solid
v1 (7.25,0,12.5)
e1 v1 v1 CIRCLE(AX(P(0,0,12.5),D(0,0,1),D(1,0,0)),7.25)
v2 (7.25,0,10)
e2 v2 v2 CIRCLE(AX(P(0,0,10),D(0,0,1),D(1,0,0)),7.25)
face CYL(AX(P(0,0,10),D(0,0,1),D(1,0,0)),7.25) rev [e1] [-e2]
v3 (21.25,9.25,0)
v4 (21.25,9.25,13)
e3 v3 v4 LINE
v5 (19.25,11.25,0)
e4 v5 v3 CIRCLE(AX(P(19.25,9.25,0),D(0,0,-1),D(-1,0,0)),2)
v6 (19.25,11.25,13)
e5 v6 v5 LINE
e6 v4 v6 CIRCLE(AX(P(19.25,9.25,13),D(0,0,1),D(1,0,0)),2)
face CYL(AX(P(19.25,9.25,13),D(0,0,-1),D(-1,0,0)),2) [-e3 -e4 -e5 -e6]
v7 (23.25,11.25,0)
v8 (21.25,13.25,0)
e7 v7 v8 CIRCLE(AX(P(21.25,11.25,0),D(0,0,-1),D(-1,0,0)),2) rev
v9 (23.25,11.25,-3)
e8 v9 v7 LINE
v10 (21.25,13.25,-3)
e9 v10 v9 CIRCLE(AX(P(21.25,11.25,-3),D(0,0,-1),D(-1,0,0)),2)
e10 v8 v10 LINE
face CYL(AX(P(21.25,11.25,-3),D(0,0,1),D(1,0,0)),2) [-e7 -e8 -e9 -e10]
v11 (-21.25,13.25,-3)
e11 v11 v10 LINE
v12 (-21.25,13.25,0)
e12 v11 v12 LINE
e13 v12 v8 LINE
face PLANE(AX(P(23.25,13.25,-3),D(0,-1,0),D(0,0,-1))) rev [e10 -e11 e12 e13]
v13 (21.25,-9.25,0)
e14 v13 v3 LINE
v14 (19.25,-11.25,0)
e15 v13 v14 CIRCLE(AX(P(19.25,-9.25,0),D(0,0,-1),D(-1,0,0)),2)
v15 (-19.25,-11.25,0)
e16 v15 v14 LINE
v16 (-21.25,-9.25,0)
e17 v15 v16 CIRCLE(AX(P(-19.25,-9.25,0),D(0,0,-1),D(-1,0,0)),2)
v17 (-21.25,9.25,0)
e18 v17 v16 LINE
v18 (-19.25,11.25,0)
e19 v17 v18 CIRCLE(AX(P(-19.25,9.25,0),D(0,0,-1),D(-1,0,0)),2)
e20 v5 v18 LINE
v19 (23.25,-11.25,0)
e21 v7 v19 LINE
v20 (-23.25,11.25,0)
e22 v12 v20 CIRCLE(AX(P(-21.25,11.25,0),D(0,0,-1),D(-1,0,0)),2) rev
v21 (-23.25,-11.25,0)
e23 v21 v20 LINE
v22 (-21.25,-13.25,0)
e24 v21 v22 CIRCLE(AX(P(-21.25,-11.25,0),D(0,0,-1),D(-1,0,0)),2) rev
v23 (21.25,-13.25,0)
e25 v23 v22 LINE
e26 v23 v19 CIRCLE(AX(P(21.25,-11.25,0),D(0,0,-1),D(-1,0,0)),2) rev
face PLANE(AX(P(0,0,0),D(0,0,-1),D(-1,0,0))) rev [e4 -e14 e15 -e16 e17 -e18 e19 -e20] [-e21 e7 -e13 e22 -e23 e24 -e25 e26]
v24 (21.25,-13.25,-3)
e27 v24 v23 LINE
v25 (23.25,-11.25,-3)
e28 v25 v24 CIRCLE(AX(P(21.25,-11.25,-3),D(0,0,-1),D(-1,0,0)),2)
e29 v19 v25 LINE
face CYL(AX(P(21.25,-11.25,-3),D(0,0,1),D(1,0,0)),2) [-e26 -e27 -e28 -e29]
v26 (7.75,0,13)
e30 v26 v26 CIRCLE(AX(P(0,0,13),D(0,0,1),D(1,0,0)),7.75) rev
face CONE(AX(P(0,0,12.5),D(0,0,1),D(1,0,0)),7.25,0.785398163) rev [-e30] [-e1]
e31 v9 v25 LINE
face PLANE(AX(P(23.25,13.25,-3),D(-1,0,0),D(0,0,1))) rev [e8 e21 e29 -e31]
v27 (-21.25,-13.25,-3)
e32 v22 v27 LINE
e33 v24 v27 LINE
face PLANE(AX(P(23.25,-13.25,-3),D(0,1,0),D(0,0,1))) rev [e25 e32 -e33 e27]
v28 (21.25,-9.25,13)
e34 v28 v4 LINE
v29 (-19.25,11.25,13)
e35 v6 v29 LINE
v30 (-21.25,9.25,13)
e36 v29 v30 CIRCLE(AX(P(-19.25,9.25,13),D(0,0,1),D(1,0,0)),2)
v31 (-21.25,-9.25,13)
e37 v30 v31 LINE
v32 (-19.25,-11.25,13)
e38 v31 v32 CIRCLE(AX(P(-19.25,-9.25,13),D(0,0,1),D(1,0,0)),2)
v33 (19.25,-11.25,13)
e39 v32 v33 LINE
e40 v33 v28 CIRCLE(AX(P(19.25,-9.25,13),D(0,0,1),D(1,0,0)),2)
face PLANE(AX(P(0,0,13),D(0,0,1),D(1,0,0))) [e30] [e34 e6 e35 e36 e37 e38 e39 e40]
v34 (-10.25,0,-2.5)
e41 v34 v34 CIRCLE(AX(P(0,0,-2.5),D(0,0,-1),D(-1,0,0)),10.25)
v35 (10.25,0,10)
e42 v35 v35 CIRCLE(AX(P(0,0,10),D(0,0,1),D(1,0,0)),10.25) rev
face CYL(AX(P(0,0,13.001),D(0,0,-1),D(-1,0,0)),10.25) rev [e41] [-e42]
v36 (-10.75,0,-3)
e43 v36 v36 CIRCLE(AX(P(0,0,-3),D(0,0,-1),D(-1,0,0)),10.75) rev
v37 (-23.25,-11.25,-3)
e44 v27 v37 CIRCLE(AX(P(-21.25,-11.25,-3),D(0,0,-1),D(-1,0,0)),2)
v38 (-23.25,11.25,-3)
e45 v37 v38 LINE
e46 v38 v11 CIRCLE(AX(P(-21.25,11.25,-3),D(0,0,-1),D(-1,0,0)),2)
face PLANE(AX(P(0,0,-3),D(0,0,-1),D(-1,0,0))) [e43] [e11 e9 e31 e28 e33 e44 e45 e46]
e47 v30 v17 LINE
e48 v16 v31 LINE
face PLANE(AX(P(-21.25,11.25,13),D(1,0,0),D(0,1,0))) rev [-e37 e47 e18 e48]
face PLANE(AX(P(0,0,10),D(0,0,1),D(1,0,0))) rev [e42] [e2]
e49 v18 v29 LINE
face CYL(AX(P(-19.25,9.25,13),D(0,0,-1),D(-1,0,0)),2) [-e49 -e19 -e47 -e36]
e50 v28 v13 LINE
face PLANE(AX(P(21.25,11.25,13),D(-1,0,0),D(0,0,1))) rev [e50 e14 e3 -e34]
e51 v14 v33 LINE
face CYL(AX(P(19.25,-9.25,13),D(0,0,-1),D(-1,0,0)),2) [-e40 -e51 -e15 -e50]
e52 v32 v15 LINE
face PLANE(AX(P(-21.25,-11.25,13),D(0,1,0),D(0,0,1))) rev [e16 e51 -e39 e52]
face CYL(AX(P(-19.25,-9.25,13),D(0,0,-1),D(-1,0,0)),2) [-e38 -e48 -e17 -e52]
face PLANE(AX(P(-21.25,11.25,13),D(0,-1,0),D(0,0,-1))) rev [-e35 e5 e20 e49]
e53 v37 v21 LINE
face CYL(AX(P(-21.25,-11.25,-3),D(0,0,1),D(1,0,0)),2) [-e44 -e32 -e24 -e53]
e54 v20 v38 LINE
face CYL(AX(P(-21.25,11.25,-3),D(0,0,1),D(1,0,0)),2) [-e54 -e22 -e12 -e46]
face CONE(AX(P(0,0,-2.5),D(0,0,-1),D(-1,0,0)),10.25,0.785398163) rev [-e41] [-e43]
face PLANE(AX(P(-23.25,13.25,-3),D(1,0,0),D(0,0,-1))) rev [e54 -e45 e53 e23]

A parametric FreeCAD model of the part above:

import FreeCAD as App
import Part
import Sketcher
Q = App.Units.Quantity


def edges_at(feature, points):
    """Names of the edges that pass closest to the given points."""
    edges = feature.Shape.Edges
    near = lambda p: min(range(len(edges)), key=lambda i: edges[i].distToShape(Part.Vertex(*p))[0])
    return sorted({f"Edge{near(p) + 1}" for p in points})


def add_polygon(sketch, points):
    """Adds a closed chain of lines whose ends are joined by coincident constraints."""
    first, n = sketch.GeometryCount, len(points)
    for a, b in zip(points, points[1:] + points[:1]):
        sketch.addGeometry(Part.LineSegment(App.Vector(*a, 0), App.Vector(*b, 0)), False)
    for i in range(n):
        sketch.addConstraint(Sketcher.Constraint("Coincident", first + i, 2, first + (i + 1) % n, 1))

doc = App.newDocument("Part")
params = doc.addObject("Spreadsheet::Sheet", "Params")
for row, (alias, value) in enumerate([
    ("sketch1_width", "42.5 mm"),
    ("sketch1_height", "22.5 mm"),
    ("pad1_length", "13 mm"),
    ("sketch2_width", "46.5 mm"),
    ("sketch2_height", "26.5 mm"),
    ("pad2_length", "3 mm"),
    ("sketch3_diameter", "20.5 mm"),
    ("sketch4_diameter", "20.5 mm"),
    ("sketch4_diameter2", "14.5 mm"),
    ("pad3_length", "3 mm"),
    ("fillet_radius", "2 mm"),
    ("chamfer_size", "0.5 mm"),
], start=1):
    params.set(f"A{row}", alias)
    params.set(f"B{row}", "=" + value)
    params.setAlias(f"B{row}", alias)

body = doc.addObject("PartDesign::Body", "Body")

sketch1 = body.newObject("Sketcher::SketchObject", "Sketch")
sketch1.AttachmentSupport = (doc.getObject("XY_Plane"), [""])
sketch1.MapMode = "FlatFace"
add_polygon(sketch1, [(-21, 11), (-21, -11), (21, -11), (21, 11)])
sketch1.addConstraint([
    Sketcher.Constraint("Vertical", 0),
    Sketcher.Constraint("Horizontal", 1),
    Sketcher.Constraint("Vertical", 2),
    Sketcher.Constraint("Horizontal", 3),
    Sketcher.Constraint("Symmetric", 0, 2, 2, 2, -1, 1),
    Sketcher.Constraint("DistanceX", 1, 1, 1, 2, Q("42.5 mm")),
    Sketcher.Constraint("DistanceY", 0, 2, 0, 1, Q("22.5 mm")),
])
sketch1.setExpression("Constraints[9]", "Params.sketch1_width")
sketch1.setExpression("Constraints[10]", "Params.sketch1_height")
pad1 = body.newObject("PartDesign::Pad", "Pad")
pad1.Profile = sketch1
pad1.setExpression("Length", "Params.pad1_length")

sketch2 = body.newObject("Sketcher::SketchObject", "Sketch001")
sketch2.AttachmentSupport = (doc.getObject("XY_Plane"), [""])
sketch2.MapMode = "FlatFace"
add_polygon(sketch2, [(23, 13), (23, -13), (-23, -13), (-23, 13)])
sketch2.addConstraint([
    Sketcher.Constraint("Vertical", 0),
    Sketcher.Constraint("Horizontal", 1),
    Sketcher.Constraint("Vertical", 2),
    Sketcher.Constraint("Horizontal", 3),
    Sketcher.Constraint("Symmetric", 0, 2, 2, 2, -1, 1),
    Sketcher.Constraint("DistanceX", 1, 2, 1, 1, Q("46.5 mm")),
    Sketcher.Constraint("DistanceY", 0, 2, 0, 1, Q("26.5 mm")),
])
sketch2.setExpression("Constraints[9]", "Params.sketch2_width")
sketch2.setExpression("Constraints[10]", "Params.sketch2_height")
pad2 = body.newObject("PartDesign::Pad", "Pad001")
pad2.Profile = sketch2
pad2.setExpression("Length", "Params.pad2_length")
pad2.Reversed = True

sketch3 = body.newObject("Sketcher::SketchObject", "Sketch002")
sketch3.AttachmentSupport = (doc.getObject("XY_Plane"), [""])
sketch3.MapMode = "FlatFace"
sketch3.AttachmentOffset = App.Placement(App.Vector(0, 0, -3), App.Rotation())
sketch3.addGeometry(Part.Circle(App.Vector(0, 0, 0), App.Vector(0, 0, 1), 10), False)
sketch3.addConstraint([
    Sketcher.Constraint("Coincident", 0, 3, -1, 1),
    Sketcher.Constraint("Diameter", 0, Q("20.5 mm")),
])
sketch3.setExpression("Constraints[1]", "Params.sketch3_diameter")
pocket1 = body.newObject("PartDesign::Pocket", "Pocket")
pocket1.Profile = sketch3
pocket1.Type = "UpToFirst"
pocket1.Reversed = True

sketch4 = body.newObject("Sketcher::SketchObject", "Sketch003")
sketch4.AttachmentSupport = (doc.getObject("XY_Plane"), [""])
sketch4.MapMode = "FlatFace"
sketch4.AttachmentOffset = App.Placement(App.Vector(0, 0, 13), App.Rotation())
sketch4.addGeometry([
    Part.Circle(App.Vector(0, 0, 0), App.Vector(0, 0, 1), 10),
    Part.Circle(App.Vector(0, 0, 0), App.Vector(0, 0, 1), 7),
], False)
sketch4.addConstraint([
    Sketcher.Constraint("Coincident", 0, 3, -1, 1),
    Sketcher.Constraint("Coincident", 1, 3, -1, 1),
    Sketcher.Constraint("Diameter", 0, Q("20.5 mm")),
    Sketcher.Constraint("Diameter", 1, Q("14.5 mm")),
])
sketch4.setExpression("Constraints[2]", "Params.sketch4_diameter")
sketch4.setExpression("Constraints[3]", "Params.sketch4_diameter2")
pad3 = body.newObject("PartDesign::Pad", "Pad002")
pad3.Profile = sketch4
pad3.setExpression("Length", "Params.pad3_length")
pad3.Reversed = True
doc.recompute()

fillet = body.newObject("PartDesign::Fillet", "Fillet")
fillet.Base = (pad3, edges_at(pad3, [
    (-23.25, -13.25, -1.5),
    (-23.25, 13.25, -1.5),
    (23.25, 13.25, -1.5),
    (23.25, -13.25, -1.5),
    (21.25, -11.25, 6.5),
    (-21.25, -11.25, 6.5),
    (-21.25, 11.25, 6.5),
    (21.25, 11.25, 6.5),
]))
fillet.setExpression("Radius", "Params.fillet_radius")
doc.recompute()

chamfer = body.newObject("PartDesign::Chamfer", "Chamfer")
chamfer.Base = (fillet, edges_at(fillet, [(10.25, 0, -3), (-7.25, 0, 13)]))
chamfer.setExpression("Size", "Params.chamfer_size")

doc.recompute()
